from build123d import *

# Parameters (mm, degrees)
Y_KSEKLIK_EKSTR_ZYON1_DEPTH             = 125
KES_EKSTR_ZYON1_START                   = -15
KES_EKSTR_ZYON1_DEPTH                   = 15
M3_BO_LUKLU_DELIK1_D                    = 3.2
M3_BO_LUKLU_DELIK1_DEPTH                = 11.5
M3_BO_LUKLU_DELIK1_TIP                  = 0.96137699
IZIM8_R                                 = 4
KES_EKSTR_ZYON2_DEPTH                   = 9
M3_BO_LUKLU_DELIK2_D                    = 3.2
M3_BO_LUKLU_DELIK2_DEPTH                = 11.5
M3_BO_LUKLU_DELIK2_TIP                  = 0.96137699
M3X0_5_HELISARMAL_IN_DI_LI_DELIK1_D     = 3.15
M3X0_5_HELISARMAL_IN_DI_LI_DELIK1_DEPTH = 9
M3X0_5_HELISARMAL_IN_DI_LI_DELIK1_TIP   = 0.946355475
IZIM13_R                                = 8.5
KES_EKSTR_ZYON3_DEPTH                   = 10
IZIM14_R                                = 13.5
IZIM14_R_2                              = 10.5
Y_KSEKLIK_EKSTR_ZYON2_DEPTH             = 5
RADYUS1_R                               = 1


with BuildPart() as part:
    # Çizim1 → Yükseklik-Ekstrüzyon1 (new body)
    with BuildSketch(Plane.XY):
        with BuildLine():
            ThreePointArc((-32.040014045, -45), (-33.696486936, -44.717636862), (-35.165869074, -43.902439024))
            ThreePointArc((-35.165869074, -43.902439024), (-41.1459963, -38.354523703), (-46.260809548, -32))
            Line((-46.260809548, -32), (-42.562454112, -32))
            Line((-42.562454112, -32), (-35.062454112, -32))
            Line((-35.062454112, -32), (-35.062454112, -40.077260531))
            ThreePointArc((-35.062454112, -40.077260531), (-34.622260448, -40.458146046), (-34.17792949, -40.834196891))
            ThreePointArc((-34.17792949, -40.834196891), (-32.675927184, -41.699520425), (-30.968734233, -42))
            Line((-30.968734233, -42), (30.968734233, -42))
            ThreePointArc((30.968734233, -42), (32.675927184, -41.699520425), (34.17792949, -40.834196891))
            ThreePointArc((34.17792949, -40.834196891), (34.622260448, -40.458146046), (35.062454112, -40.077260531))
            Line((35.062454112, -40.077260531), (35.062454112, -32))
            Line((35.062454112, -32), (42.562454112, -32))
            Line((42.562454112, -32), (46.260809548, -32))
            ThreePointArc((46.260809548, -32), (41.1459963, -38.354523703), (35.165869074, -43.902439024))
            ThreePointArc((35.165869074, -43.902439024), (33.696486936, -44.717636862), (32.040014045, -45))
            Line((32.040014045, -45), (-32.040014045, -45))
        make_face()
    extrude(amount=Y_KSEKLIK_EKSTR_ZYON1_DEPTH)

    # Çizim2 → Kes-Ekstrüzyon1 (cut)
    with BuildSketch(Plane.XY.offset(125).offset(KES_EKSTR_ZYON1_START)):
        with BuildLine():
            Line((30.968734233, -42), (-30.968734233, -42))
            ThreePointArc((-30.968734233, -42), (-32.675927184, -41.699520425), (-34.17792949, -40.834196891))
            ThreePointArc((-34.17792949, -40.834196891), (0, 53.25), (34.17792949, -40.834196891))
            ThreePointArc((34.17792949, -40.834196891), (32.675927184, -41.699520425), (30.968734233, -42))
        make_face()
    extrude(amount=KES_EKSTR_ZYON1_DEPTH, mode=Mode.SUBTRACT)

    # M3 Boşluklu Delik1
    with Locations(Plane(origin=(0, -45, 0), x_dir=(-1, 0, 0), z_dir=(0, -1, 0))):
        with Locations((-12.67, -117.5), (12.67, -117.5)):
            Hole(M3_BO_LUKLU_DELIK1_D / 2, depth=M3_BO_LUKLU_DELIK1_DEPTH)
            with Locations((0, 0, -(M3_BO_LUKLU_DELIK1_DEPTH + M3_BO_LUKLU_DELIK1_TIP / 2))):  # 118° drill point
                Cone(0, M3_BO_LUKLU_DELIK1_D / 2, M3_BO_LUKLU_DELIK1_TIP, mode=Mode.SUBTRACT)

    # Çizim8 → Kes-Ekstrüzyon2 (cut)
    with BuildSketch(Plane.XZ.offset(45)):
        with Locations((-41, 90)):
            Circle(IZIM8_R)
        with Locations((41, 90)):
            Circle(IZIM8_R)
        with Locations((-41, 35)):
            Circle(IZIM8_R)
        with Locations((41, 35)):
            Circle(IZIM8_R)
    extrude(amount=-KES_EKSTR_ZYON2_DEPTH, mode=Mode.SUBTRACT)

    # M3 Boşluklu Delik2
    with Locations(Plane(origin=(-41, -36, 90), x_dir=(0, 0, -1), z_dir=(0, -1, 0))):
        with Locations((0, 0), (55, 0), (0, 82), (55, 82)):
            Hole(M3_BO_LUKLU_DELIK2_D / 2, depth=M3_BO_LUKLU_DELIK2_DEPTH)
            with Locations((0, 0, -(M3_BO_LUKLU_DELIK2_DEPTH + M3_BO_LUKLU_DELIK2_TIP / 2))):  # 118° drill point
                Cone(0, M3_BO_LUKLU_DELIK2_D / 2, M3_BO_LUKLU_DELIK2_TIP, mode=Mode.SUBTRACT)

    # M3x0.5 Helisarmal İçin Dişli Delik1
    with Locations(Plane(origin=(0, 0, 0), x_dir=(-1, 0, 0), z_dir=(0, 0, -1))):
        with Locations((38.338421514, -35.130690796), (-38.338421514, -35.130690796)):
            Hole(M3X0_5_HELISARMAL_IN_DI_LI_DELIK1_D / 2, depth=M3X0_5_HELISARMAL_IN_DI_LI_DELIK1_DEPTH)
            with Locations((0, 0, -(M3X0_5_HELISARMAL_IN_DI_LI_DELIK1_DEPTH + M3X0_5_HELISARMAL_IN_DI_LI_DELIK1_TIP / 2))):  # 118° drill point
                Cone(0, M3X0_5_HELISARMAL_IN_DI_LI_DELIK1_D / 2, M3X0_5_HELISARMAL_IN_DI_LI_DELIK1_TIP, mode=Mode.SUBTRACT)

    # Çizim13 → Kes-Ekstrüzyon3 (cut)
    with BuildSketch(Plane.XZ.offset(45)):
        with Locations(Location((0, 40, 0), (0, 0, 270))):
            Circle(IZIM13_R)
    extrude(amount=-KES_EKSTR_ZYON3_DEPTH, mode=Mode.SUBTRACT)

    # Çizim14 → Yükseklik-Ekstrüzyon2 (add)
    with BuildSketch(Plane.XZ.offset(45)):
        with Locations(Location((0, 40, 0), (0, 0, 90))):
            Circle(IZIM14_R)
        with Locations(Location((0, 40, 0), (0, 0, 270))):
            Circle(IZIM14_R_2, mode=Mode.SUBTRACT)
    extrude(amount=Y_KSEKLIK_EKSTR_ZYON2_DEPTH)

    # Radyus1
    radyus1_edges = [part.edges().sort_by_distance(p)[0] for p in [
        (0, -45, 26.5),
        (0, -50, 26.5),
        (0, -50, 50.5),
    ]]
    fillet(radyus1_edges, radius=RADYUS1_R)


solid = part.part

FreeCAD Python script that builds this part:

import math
import FreeCAD as App
import Part
import Sketcher
from FreeCAD import Vector


def edges_at(feature, points):
    """Names of the edges that pass closest to the given points."""
    edges = feature.Shape.Edges
    near = lambda p: min(range(len(edges)), key=lambda i: edges[i].distToShape(Part.Vertex(*p))[0])
    return sorted({f"Edge{near(p) + 1}" for p in points})

doc = App.newDocument("Part")
body = doc.addObject("PartDesign::Body", "Body")

sketch1 = body.newObject("Sketcher::SketchObject", "Sketch")
sketch1.AttachmentSupport = (doc.getObject("XY_Plane"), [""])
sketch1.MapMode = "FlatFace"
sketch1.addGeometry([
    Part.ArcOfCircle(Part.Circle(Vector(-32, -40, 0), Vector(0, 0, 1), 5), math.radians(-129), math.radians(-90)),
    Part.LineSegment(Vector(-32, -45, 0), Vector(32, -45, 0)),
    Part.ArcOfCircle(Part.Circle(Vector(32, -40, 0), Vector(0, 0, 1), 5), math.radians(-90), math.radians(-51)),
    Part.ArcOfCircle(Part.Circle(Vector(0, 0, 0), Vector(0, 0, 1), 56.3), math.radians(-51.31), math.radians(-34.67)),
    Part.LineSegment(Vector(46.3, -32, 0), Vector(35.1, -32, 0)),
    Part.LineSegment(Vector(35.1, -32, 0), Vector(35.1, -40.1, 0)),
    Part.ArcOfCircle(Part.Circle(Vector(0, 0, 0), Vector(0, 0, 1), 53.2), math.radians(-50.07), math.radians(-48.82)),
    Part.ArcOfCircle(Part.Circle(Vector(31, -37, 0), Vector(0, 0, 1), 5), math.radians(-90), math.radians(-50)),
    Part.LineSegment(Vector(31, -42, 0), Vector(-31, -42, 0)),
    Part.ArcOfCircle(Part.Circle(Vector(-31, -37, 0), Vector(0, 0, 1), 5), math.radians(-130), math.radians(-90)),
    Part.ArcOfCircle(Part.Circle(Vector(0, 0, 0), Vector(0, 0, 1), 53.2), math.radians(-131.18), math.radians(-129.93)),
    Part.LineSegment(Vector(-35.1, -40.1, 0), Vector(-35.1, -32, 0)),
    Part.LineSegment(Vector(-35.1, -32, 0), Vector(-46.3, -32, 0)),
    Part.ArcOfCircle(Part.Circle(Vector(0, 0, 0), Vector(0, 0, 1), 56.3), math.radians(-145.33), math.radians(-128.69)),
], False)
sketch1.addConstraint([
    Sketcher.Constraint("Tangent", 0, 2, 1, 1),
    Sketcher.Constraint("Tangent", 1, 2, 2, 1),
    Sketcher.Constraint("Tangent", 2, 2, 3, 1),
    Sketcher.Constraint("Coincident", 3, 2, 4, 1),
    Sketcher.Constraint("Coincident", 4, 2, 5, 1),
    Sketcher.Constraint("Coincident", 5, 2, 6, 2),
    Sketcher.Constraint("Tangent", 6, 1, 7, 2),
    Sketcher.Constraint("Tangent", 7, 1, 8, 1),
    Sketcher.Constraint("Tangent", 8, 2, 9, 2),
    Sketcher.Constraint("Tangent", 9, 1, 10, 2),
    Sketcher.Constraint("Coincident", 10, 1, 11, 1),
    Sketcher.Constraint("Coincident", 11, 2, 12, 1),
    Sketcher.Constraint("Coincident", 12, 2, 13, 1),
    Sketcher.Constraint("Tangent", 13, 2, 0, 1),
    Sketcher.Constraint("Horizontal", 1),
    Sketcher.Constraint("Horizontal", 4),
    Sketcher.Constraint("Vertical", 5),
    Sketcher.Constraint("Horizontal", 8),
    Sketcher.Constraint("Vertical", 11),
    Sketcher.Constraint("Horizontal", 12),
    Sketcher.Constraint("Coincident", 3, 3, -1, 1),
    Sketcher.Constraint("Coincident", 6, 3, -1, 1),
    Sketcher.Constraint("Coincident", 10, 3, -1, 1),
    Sketcher.Constraint("Coincident", 13, 3, -1, 1),
    Sketcher.Constraint("Equal", 0, 2),
    Sketcher.Constraint("Equal", 2, 7),
    Sketcher.Constraint("Equal", 7, 9),
    Sketcher.Constraint("Equal", 6, 10),
    Sketcher.Constraint("Equal", 3, 13),
    Sketcher.Constraint("Symmetric", 4, 2, 11, 2, -2),
    Sketcher.Constraint("Radius", 0, 5.0),
    Sketcher.Constraint("Radius", 3, 56.25),
    Sketcher.Constraint("DistanceY", 0, 3, -1, 1, 40.0),
    Sketcher.Constraint("DistanceY", 7, 3, -1, 1, 37.0),
    Sketcher.Constraint("DistanceY", 3, 2, -1, 1, 32.0),
    Sketcher.Constraint("Radius", 6, 53.249997),
    Sketcher.Constraint("DistanceY", 5, 2, 5, 1, 8.077261),
])
pad1 = body.newObject("PartDesign::Pad", "Pad")
pad1.Profile = sketch1
pad1.Length = 125

sketch2 = body.newObject("Sketcher::SketchObject", "Sketch001")
sketch2.AttachmentSupport = (doc.getObject("XY_Plane"), [""])
sketch2.MapMode = "FlatFace"
sketch2.AttachmentOffset = App.Placement(Vector(0, 0, 110), App.Rotation())
sketch2.addGeometry([
    Part.LineSegment(Vector(-31, -42, 0), Vector(31, -42, 0)),
    Part.ArcOfCircle(Part.Circle(Vector(31, -37, 0), Vector(0, 0, 1), 5), math.radians(-90), math.radians(-50)),
    Part.ArcOfCircle(Part.Circle(Vector(0, 0, 0), Vector(0, 0, 1), 53.2), math.radians(-50), math.radians(230)),
    Part.ArcOfCircle(Part.Circle(Vector(-31, -37, 0), Vector(0, 0, 1), 5), math.radians(-130), math.radians(-90)),
], False)
sketch2.addConstraint([
    Sketcher.Constraint("Tangent", 0, 2, 1, 1),
    Sketcher.Constraint("Tangent", 1, 2, 2, 1),
    Sketcher.Constraint("Tangent", 2, 2, 3, 1),
    Sketcher.Constraint("Tangent", 3, 2, 0, 1),
    Sketcher.Constraint("Horizontal", 0),
    Sketcher.Constraint("Coincident", 2, 3, -1, 1),
    Sketcher.Constraint("Equal", 1, 3),
    Sketcher.Constraint("Radius", 1, 5.0),
    Sketcher.Constraint("Radius", 2, 53.25),
    Sketcher.Constraint("DistanceY", 1, 3, -1, 1, 37.0),
])
pocket1 = body.newObject("PartDesign::Pocket", "Pocket")
pocket1.Profile = sketch2
pocket1.Length = 15
pocket1.Reversed = True

sketch3 = body.newObject("Sketcher::SketchObject", "Sketch002")
sketch3.AttachmentSupport = (doc.getObject("XZ_Plane"), [""])
sketch3.MapMode = "FlatFace"
sketch3.AttachmentOffset = App.Placement(Vector(0, 0, 45), App.Rotation())
sketch3.addGeometry([
    Part.Circle(Vector(12.7, 117.5, 0), Vector(0, 0, 1), 1.6),
    Part.Circle(Vector(-12.7, 117.5, 0), Vector(0, 0, 1), 1.6),
], False)
sketch3.addConstraint([
    Sketcher.Constraint("Equal", 0, 1),
    Sketcher.Constraint("Symmetric", 0, 3, 1, 3, -2),
    Sketcher.Constraint("Diameter", 0, 3.2),
    Sketcher.Constraint("DistanceY", -1, 1, 0, 3, 117.5),
    Sketcher.Constraint("DistanceX", -1, 1, 0, 3, 12.67),
])
doc.recompute()
hole = body.newObject("PartDesign::Hole", "Hole")
hole.Profile = sketch3
hole.ThreadType = "None"
hole.Diameter = 3.2
hole.DepthType = "Dimension"
hole.Depth = 11.5
hole.DrillPoint = "Angled"
hole.DrillPointAngle = 118

sketch4 = body.newObject("Sketcher::SketchObject", "Sketch003")
sketch4.AttachmentSupport = (doc.getObject("XZ_Plane"), [""])
sketch4.MapMode = "FlatFace"
sketch4.AttachmentOffset = App.Placement(Vector(0, 0, 45), App.Rotation())
sketch4.addGeometry([
    Part.Circle(Vector(-41, 90, 0), Vector(0, 0, 1), 4),
    Part.Circle(Vector(41, 90, 0), Vector(0, 0, 1), 4),
    Part.Circle(Vector(-41, 35, 0), Vector(0, 0, 1), 4),
    Part.Circle(Vector(41, 35, 0), Vector(0, 0, 1), 4),
], False)
sketch4.addConstraint([
    Sketcher.Constraint("Equal", 0, 1),
    Sketcher.Constraint("Equal", 1, 2),
    Sketcher.Constraint("Equal", 2, 3),
    Sketcher.Constraint("Symmetric", 0, 3, 1, 3, -2),
    Sketcher.Constraint("Symmetric", 2, 3, 3, 3, -2),
    Sketcher.Constraint("Vertical", 0, 3, 2, 3),
    Sketcher.Constraint("Diameter", 0, 8.0),
    Sketcher.Constraint("DistanceX", 0, 3, -1, 1, 41.0),
    Sketcher.Constraint("DistanceY", -1, 1, 0, 3, 90.0),
    Sketcher.Constraint("DistanceY", -1, 1, 2, 3, 35.0),
])
pocket2 = body.newObject("PartDesign::Pocket", "Pocket001")
pocket2.Profile = sketch4
pocket2.Length = 9

sketch5 = body.newObject("Sketcher::SketchObject", "Sketch004")
sketch5.AttachmentSupport = (doc.getObject("XZ_Plane"), [""])
sketch5.MapMode = "FlatFace"
sketch5.AttachmentOffset = App.Placement(Vector(0, 0, 36), App.Rotation())
sketch5.addGeometry([
    Part.Circle(Vector(-41, 90, 0), Vector(0, 0, 1), 1.6),
    Part.Circle(Vector(-41, 35, 0), Vector(0, 0, 1), 1.6),
    Part.Circle(Vector(41, 90, 0), Vector(0, 0, 1), 1.6),
    Part.Circle(Vector(41, 35, 0), Vector(0, 0, 1), 1.6),
], False)
sketch5.addConstraint([
    Sketcher.Constraint("Equal", 0, 1),
    Sketcher.Constraint("Equal", 1, 2),
    Sketcher.Constraint("Equal", 2, 3),
    Sketcher.Constraint("Symmetric", 0, 3, 2, 3, -2),
    Sketcher.Constraint("Symmetric", 1, 3, 3, 3, -2),
    Sketcher.Constraint("Vertical", 0, 3, 1, 3),
    Sketcher.Constraint("Diameter", 0, 3.2),
    Sketcher.Constraint("DistanceX", 0, 3, -1, 1, 41.0),
    Sketcher.Constraint("DistanceY", -1, 1, 0, 3, 90.0),
    Sketcher.Constraint("DistanceY", -1, 1, 1, 3, 35.0),
])
doc.recompute()
hole2 = body.newObject("PartDesign::Hole", "Hole001")
hole2.Profile = sketch5
hole2.ThreadType = "None"
hole2.Diameter = 3.2
hole2.DepthType = "Dimension"
hole2.Depth = 11.5
hole2.DrillPoint = "Angled"
hole2.DrillPointAngle = 118

sketch6 = body.newObject("Sketcher::SketchObject", "Sketch005")
sketch6.AttachmentSupport = (doc.getObject("XY_Plane"), [""])
sketch6.MapMode = "FlatFace"
sketch6.addGeometry([
    Part.Circle(Vector(-38.3, -35.1, 0), Vector(0, 0, 1), 1.6),
    Part.Circle(Vector(38.3, -35.1, 0), Vector(0, 0, 1), 1.6),
], False)
sketch6.addConstraint([
    Sketcher.Constraint("Equal", 0, 1),
    Sketcher.Constraint("Symmetric", 0, 3, 1, 3, -2),
    Sketcher.Constraint("Diameter", 0, 3.15),
    Sketcher.Constraint("DistanceX", 0, 3, -1, 1, 38.338422),
    Sketcher.Constraint("DistanceY", 0, 3, -1, 1, 35.130691),
])
doc.recompute()
hole3 = body.newObject("PartDesign::Hole", "Hole002")
hole3.Profile = sketch6
hole3.ThreadType = "None"
hole3.Diameter = 3.15
hole3.DepthType = "Dimension"
hole3.Depth = 9
hole3.DrillPoint = "Angled"
hole3.DrillPointAngle = 118
hole3.Reversed = True

sketch7 = body.newObject("Sketcher::SketchObject", "Sketch006")
sketch7.AttachmentSupport = (doc.getObject("XZ_Plane"), [""])
sketch7.MapMode = "FlatFace"
sketch7.AttachmentOffset = App.Placement(Vector(0, 0, 45), App.Rotation())
sketch7.addGeometry(Part.Circle(Vector(0, 40, 0), Vector(0, 0, 1), 8), False)
sketch7.addConstraint([
    Sketcher.Constraint("PointOnObject", 0, 3, -2),
    Sketcher.Constraint("Diameter", 0, 17.0),
    Sketcher.Constraint("DistanceY", -1, 1, 0, 3, 40.0),
])
pocket3 = body.newObject("PartDesign::Pocket", "Pocket002")
pocket3.Profile = sketch7
pocket3.Length = 10

sketch8 = body.newObject("Sketcher::SketchObject", "Sketch007")
sketch8.AttachmentSupport = (doc.getObject("XZ_Plane"), [""])
sketch8.MapMode = "FlatFace"
sketch8.AttachmentOffset = App.Placement(Vector(0, 0, 45), App.Rotation())
sketch8.addGeometry([
    Part.Circle(Vector(0, 40, 0), Vector(0, 0, 1), 14),
    Part.Circle(Vector(0, 40, 0), Vector(0, 0, 1), 10),
], False)
sketch8.addConstraint([
    Sketcher.Constraint("Coincident", 1, 3, 0, 3),
    Sketcher.Constraint("PointOnObject", 0, 3, -2),
    Sketcher.Constraint("Diameter", 0, 27.0),
    Sketcher.Constraint("Diameter", 1, 21.0),
    Sketcher.Constraint("DistanceY", -1, 1, 0, 3, 40.0),
])
pad2 = body.newObject("PartDesign::Pad", "Pad001")
pad2.Profile = sketch8
pad2.Length = 5
doc.recompute()

fillet = body.newObject("PartDesign::Fillet", "Fillet")
fillet.Base = (pad2, edges_at(pad2, [(0, -45, 26.5), (0, -50, 26.5), (0, -50, 50.5)]))
fillet.Radius = 1

doc.recompute()
